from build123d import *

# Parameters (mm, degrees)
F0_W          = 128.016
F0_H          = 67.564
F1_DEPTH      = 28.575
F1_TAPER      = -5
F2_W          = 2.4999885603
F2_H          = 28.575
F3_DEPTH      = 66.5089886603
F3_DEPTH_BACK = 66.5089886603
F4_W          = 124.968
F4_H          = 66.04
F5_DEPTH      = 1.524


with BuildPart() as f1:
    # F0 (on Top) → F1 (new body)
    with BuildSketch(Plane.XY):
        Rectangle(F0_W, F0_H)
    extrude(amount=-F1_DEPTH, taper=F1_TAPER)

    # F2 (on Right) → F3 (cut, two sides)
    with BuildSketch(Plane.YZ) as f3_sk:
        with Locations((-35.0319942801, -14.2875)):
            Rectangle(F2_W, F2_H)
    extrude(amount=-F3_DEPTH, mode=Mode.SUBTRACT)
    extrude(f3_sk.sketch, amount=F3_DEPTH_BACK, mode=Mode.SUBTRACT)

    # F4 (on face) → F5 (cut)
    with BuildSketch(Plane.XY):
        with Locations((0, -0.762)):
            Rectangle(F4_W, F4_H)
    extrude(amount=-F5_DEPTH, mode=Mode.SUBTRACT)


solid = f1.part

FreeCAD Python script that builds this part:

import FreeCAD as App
import Part
import Sketcher

V = App.Vector
Q = App.Units.Quantity


def add_polygon(sketch, points):
    """Adds a closed chain of lines whose ends are joined by coincident constraints."""
    first, n = sketch.GeometryCount, len(points)
    for a, b in zip(points, points[1:] + points[:1]):
        sketch.addGeometry(Part.LineSegment(App.Vector(*a, 0), App.Vector(*b, 0)), False)
    for i in range(n):
        sketch.addConstraint(Sketcher.Constraint("Coincident", first + i, 2, first + (i + 1) % n, 1))

doc = App.newDocument("Part")
body = doc.addObject("PartDesign::Body", "Body")

# Sketch on XY plane
sketch1 = doc.addObject("Sketcher::SketchObject", "Sketch")
body.addObject(sketch1)
sketch1.AttachmentSupport = (doc.XY_Plane, [""])
sketch1.MapMode = "FlatFace"
add_polygon(sketch1, [(-64.008, 33.782), (-64.008, -33.782), (64.008, -33.782), (64.008, 33.782)])  # lines 0-3
sketch1.addConstraint(Sketcher.Constraint("Vertical", 0))
sketch1.addConstraint(Sketcher.Constraint("Horizontal", 1))
sketch1.addConstraint(Sketcher.Constraint("Vertical", 2))
sketch1.addConstraint(Sketcher.Constraint("Horizontal", 3))
sketch1.addConstraint(Sketcher.Constraint("Symmetric", 0, 2, 2, 2, -1, 1))
sketch1.addConstraint(Sketcher.Constraint("DistanceX", 1, 1, 1, 2, Q("5.04 in")))
sketch1.addConstraint(Sketcher.Constraint("DistanceY", 0, 2, 0, 1, Q("2.66 in")))
pad1 = doc.addObject("PartDesign::Pad", "Pad")
body.addObject(pad1)
pad1.Profile = sketch1
pad1.Length = Q("1.125 in")
pad1.Reversed = True
pad1.TaperAngle = 5

# Sketch on YZ plane
sketch2 = doc.addObject("Sketcher::SketchObject", "Sketch001")
body.addObject(sketch2)
sketch2.AttachmentSupport = (doc.YZ_Plane, [""])
sketch2.MapMode = "FlatFace"
add_polygon(sketch2, [(-36.281989, 0), (-36.281989, -28.575), (-33.782, -28.575), (-33.782, 0)])  # lines 0-3
sketch2.addConstraint(Sketcher.Constraint("Vertical", 0))
sketch2.addConstraint(Sketcher.Constraint("Horizontal", 1))
sketch2.addConstraint(Sketcher.Constraint("Vertical", 2))
sketch2.addConstraint(Sketcher.Constraint("Horizontal", 3))
sketch2.addConstraint(Sketcher.Constraint("PointOnObject", 2, 2, -1))
sketch2.addConstraint(Sketcher.Constraint("DistanceY", 0, 2, 0, 1, Q("1.125 in")))
sketch2.addConstraint(Sketcher.Constraint("DistanceX", 1, 2, -1, 1, Q("1.33 in")))
sketch2.addConstraint(Sketcher.Constraint("DistanceX", 1, 1, 1, 2, 2.499989))
pocket1 = doc.addObject("PartDesign::Pocket", "Pocket")
body.addObject(pocket1)
pocket1.Profile = sketch2
pocket1.Type = "ThroughAll"
pocket1.Midplane = True

# Sketch on XY plane
sketch3 = doc.addObject("Sketcher::SketchObject", "Sketch002")
body.addObject(sketch3)
sketch3.AttachmentSupport = (doc.XY_Plane, [""])
sketch3.MapMode = "FlatFace"
add_polygon(sketch3, [(-62.484, 32.258), (-62.484, -33.782), (62.484, -33.782), (62.484, 32.258)])  # lines 0-3
sketch3.addConstraint(Sketcher.Constraint("Vertical", 0))
sketch3.addConstraint(Sketcher.Constraint("Horizontal", 1))
sketch3.addConstraint(Sketcher.Constraint("Vertical", 2))
sketch3.addConstraint(Sketcher.Constraint("Horizontal", 3))
sketch3.addConstraint(Sketcher.Constraint("DistanceY", 0, 2, 0, 1, Q("2.6 in")))
sketch3.addConstraint(Sketcher.Constraint("DistanceX", 1, 1, 1, 2, Q("4.92 in")))
sketch3.addConstraint(Sketcher.Constraint("DistanceX", 0, 2, -1, 1, Q("2.46 in")))
sketch3.addConstraint(Sketcher.Constraint("DistanceY", 0, 2, -1, 1, Q("1.33 in")))
pocket2 = doc.addObject("PartDesign::Pocket", "Pocket001")
body.addObject(pocket2)
pocket2.Profile = sketch3
pocket2.Length = Q("0.06 in")

doc.recompute()
